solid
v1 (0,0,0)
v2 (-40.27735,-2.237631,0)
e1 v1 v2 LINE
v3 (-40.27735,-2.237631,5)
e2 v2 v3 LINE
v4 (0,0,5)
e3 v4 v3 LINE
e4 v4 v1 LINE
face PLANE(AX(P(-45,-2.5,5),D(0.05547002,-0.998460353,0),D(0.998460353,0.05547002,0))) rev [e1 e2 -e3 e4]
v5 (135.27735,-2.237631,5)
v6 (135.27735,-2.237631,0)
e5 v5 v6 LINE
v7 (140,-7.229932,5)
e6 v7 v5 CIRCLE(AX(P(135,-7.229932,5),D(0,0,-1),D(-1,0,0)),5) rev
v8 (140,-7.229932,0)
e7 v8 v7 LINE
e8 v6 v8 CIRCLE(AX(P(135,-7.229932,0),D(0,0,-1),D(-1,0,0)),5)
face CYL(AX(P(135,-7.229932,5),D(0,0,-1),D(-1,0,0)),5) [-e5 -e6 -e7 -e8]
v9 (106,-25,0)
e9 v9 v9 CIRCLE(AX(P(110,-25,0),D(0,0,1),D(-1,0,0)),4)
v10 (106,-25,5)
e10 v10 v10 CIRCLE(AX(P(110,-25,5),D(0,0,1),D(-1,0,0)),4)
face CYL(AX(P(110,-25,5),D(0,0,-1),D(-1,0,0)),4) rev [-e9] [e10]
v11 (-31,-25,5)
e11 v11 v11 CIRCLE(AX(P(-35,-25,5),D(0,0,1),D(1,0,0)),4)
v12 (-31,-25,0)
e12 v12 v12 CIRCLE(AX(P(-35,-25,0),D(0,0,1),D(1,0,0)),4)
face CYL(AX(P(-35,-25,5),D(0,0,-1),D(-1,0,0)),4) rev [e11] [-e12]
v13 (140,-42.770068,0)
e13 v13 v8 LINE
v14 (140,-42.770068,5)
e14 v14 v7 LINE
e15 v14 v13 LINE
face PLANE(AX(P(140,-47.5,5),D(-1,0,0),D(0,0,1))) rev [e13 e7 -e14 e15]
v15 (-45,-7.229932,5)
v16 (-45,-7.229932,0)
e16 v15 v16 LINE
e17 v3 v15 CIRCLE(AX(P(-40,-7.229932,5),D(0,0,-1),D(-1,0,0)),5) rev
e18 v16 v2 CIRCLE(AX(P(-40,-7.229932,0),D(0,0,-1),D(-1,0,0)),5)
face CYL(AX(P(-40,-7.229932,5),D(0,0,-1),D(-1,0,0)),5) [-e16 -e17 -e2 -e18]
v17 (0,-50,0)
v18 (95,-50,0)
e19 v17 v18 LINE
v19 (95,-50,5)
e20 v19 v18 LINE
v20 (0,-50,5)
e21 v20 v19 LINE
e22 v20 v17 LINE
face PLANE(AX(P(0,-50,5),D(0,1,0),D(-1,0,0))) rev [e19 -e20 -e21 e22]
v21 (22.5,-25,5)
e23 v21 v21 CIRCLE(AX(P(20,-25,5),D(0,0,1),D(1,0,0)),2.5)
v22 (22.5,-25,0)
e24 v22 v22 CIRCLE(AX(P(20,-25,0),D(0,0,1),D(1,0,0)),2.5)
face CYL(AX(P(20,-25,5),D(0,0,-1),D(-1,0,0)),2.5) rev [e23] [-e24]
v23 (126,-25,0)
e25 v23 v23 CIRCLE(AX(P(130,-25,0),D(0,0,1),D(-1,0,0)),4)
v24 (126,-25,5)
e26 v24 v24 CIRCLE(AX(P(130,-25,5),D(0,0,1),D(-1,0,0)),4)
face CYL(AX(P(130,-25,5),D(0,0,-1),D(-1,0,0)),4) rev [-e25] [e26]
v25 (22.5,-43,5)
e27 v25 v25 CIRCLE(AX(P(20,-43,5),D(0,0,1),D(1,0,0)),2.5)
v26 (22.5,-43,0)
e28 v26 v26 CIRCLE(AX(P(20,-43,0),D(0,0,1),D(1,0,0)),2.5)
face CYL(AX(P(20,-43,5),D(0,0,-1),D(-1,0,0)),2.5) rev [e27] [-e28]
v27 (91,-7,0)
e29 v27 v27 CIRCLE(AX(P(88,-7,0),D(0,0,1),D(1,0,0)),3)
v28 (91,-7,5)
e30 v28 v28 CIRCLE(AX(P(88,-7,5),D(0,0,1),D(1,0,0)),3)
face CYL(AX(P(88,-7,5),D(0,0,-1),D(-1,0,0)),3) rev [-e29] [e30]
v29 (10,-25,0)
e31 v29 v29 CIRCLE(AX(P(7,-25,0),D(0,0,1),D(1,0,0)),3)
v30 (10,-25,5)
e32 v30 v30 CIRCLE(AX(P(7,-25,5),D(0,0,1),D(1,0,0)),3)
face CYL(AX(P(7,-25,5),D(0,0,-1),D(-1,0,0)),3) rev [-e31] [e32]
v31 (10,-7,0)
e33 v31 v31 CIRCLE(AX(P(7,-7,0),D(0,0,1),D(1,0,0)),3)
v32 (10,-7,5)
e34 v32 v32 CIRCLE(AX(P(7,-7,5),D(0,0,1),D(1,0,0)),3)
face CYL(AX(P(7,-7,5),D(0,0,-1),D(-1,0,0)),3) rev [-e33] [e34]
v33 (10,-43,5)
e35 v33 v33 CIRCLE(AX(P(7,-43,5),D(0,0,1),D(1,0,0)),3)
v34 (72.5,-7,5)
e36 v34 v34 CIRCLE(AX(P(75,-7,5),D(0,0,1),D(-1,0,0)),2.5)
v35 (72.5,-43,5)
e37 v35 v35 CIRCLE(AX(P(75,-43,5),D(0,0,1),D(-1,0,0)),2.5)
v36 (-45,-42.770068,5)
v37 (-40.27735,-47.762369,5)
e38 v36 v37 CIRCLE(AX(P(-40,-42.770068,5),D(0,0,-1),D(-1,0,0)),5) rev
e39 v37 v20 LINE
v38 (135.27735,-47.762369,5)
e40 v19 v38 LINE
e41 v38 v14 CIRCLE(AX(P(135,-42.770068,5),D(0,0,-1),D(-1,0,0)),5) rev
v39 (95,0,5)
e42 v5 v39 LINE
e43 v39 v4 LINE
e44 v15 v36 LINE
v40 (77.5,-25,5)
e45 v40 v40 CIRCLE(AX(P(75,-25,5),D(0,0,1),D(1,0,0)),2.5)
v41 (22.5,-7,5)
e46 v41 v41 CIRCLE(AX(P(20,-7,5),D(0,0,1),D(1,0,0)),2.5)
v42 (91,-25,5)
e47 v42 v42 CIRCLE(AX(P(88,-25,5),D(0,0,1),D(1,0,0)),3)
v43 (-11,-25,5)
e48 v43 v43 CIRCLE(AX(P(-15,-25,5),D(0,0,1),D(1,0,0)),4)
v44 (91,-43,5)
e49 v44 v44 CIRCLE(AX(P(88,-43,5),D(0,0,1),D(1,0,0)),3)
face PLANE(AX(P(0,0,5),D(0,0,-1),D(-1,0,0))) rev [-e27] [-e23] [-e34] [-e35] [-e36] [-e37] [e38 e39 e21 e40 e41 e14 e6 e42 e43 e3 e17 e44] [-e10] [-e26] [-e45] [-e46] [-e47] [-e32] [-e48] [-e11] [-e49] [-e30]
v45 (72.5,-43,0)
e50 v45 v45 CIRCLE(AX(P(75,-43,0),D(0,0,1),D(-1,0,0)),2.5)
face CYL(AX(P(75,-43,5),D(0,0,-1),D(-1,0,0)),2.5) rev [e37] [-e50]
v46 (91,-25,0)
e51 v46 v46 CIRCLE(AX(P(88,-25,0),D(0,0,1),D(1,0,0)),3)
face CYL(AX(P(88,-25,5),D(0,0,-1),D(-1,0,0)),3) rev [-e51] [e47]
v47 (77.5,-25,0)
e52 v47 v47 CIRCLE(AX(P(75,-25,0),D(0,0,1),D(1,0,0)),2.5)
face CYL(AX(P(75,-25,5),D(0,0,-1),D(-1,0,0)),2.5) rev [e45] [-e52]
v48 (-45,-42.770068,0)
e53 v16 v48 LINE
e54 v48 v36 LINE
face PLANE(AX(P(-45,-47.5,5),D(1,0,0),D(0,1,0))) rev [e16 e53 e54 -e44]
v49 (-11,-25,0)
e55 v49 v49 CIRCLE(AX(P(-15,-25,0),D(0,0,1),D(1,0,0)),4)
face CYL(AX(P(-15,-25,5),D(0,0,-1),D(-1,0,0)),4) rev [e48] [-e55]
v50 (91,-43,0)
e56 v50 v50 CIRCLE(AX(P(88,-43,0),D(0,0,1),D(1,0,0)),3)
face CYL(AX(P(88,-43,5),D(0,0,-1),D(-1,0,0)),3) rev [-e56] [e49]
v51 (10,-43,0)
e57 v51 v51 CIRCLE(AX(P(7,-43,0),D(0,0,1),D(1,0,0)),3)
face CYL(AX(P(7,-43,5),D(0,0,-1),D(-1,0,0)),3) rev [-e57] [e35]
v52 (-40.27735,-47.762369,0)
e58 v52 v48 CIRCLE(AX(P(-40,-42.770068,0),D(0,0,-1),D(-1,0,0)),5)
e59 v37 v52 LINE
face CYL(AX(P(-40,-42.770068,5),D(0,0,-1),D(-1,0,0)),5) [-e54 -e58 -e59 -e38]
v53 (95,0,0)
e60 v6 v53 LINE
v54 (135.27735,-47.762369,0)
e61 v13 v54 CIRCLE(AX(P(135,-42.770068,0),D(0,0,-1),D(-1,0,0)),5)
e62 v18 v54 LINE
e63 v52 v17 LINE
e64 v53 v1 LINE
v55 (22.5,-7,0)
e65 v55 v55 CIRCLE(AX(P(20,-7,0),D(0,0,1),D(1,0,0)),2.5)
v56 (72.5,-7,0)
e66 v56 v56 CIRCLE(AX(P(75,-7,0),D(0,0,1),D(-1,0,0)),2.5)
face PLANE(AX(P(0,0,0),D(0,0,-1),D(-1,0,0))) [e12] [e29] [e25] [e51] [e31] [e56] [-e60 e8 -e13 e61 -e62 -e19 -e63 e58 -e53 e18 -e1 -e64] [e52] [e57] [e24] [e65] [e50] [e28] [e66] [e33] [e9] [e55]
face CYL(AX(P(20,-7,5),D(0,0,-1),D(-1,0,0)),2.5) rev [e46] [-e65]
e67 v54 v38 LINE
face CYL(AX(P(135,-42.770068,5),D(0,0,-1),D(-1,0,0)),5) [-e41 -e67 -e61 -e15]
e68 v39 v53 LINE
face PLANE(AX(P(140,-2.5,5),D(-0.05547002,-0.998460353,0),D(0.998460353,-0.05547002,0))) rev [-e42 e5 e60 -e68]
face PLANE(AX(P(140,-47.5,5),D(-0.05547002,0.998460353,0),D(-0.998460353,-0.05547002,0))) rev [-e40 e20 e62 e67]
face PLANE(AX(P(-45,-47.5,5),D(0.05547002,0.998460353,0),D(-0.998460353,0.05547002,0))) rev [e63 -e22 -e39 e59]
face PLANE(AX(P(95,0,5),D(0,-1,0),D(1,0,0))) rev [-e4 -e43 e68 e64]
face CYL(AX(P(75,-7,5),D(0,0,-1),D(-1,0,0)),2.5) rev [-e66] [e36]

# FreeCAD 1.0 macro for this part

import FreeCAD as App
import Part
import Sketcher
Q = App.Units.Quantity


def edges_at(feature, points):
    """Names of the edges that pass closest to the given points."""
    edges = feature.Shape.Edges
    near = lambda p: min(range(len(edges)), key=lambda i: edges[i].distToShape(Part.Vertex(*p))[0])
    return sorted({f"Edge{near(p) + 1}" for p in points})

doc = App.newDocument("Part")
body = doc.addObject("PartDesign::Body", "Body")

sketch1 = body.newObject("Sketcher::SketchObject", "Sketch")
sketch1.AttachmentSupport = (doc.getObject("XY_Plane"), [""])
sketch1.MapMode = "FlatFace"
sketch1.addGeometry(Part.LineSegment(App.Vector(95, 0, 0), App.Vector(0, 0, 0)), False)
sketch1.addGeometry(Part.LineSegment(App.Vector(0, 0, 0), App.Vector(-45, -2.5, 0)), False)
sketch1.addGeometry(Part.LineSegment(App.Vector(-45, -2.5, 0), App.Vector(-45, -47.5, 0)), False)
sketch1.addGeometry(Part.LineSegment(App.Vector(-45, -47.5, 0), App.Vector(0, -50, 0)), False)
sketch1.addGeometry(Part.LineSegment(App.Vector(0, -50, 0), App.Vector(95, -50, 0)), False)
sketch1.addGeometry(Part.LineSegment(App.Vector(95, -50, 0), App.Vector(140, -47.5, 0)), False)
sketch1.addGeometry(Part.LineSegment(App.Vector(140, -47.5, 0), App.Vector(140, -2.5, 0)), False)
sketch1.addGeometry(Part.LineSegment(App.Vector(140, -2.5, 0), App.Vector(95, 0, 0)), False)
sketch1.addGeometry(Part.Circle(App.Vector(7, -43, 0), App.Vector(0, 0, 1), 3), False)
sketch1.addGeometry(Part.Circle(App.Vector(20, -43, 0), App.Vector(0, 0, 1), 2.5), False)
sketch1.addGeometry(Part.Circle(App.Vector(75, -43, 0), App.Vector(0, 0, 1), 2.5), False)
sketch1.addGeometry(Part.Circle(App.Vector(88, -43, 0), App.Vector(0, 0, 1), 3), False)
sketch1.addGeometry(Part.Circle(App.Vector(-35, -25, 0), App.Vector(0, 0, 1), 4), False)
sketch1.addGeometry(Part.Circle(App.Vector(-15, -25, 0), App.Vector(0, 0, 1), 4), False)
sketch1.addGeometry(Part.Circle(App.Vector(7, -25, 0), App.Vector(0, 0, 1), 3), False)
sketch1.addGeometry(Part.Circle(App.Vector(20, -25, 0), App.Vector(0, 0, 1), 2.5), False)
sketch1.addGeometry(Part.Circle(App.Vector(7, -7, 0), App.Vector(0, 0, 1), 3), False)
sketch1.addGeometry(Part.Circle(App.Vector(20, -7, 0), App.Vector(0, 0, 1), 2.5), False)
sketch1.addGeometry(Part.Circle(App.Vector(75, -25, 0), App.Vector(0, 0, 1), 2.5), False)
sketch1.addGeometry(Part.Circle(App.Vector(88, -25, 0), App.Vector(0, 0, 1), 3), False)
sketch1.addGeometry(Part.Circle(App.Vector(110, -25, 0), App.Vector(0, 0, 1), 4), False)
sketch1.addGeometry(Part.Circle(App.Vector(130, -25, 0), App.Vector(0, 0, 1), 4), False)
sketch1.addGeometry(Part.Circle(App.Vector(75, -7, 0), App.Vector(0, 0, 1), 2.5), False)
sketch1.addGeometry(Part.Circle(App.Vector(88, -7, 0), App.Vector(0, 0, 1), 3), False)
sketch1.addConstraint(Sketcher.Constraint("Coincident", 0, 2, 1, 1))
sketch1.addConstraint(Sketcher.Constraint("Coincident", 1, 2, 2, 1))
sketch1.addConstraint(Sketcher.Constraint("Coincident", 2, 2, 3, 1))
sketch1.addConstraint(Sketcher.Constraint("Coincident", 3, 2, 4, 1))
sketch1.addConstraint(Sketcher.Constraint("Coincident", 4, 2, 5, 1))
sketch1.addConstraint(Sketcher.Constraint("Coincident", 5, 2, 6, 1))
sketch1.addConstraint(Sketcher.Constraint("Coincident", 6, 2, 7, 1))
sketch1.addConstraint(Sketcher.Constraint("Coincident", 7, 2, 0, 1))
sketch1.addConstraint(Sketcher.Constraint("Horizontal", 0))
sketch1.addConstraint(Sketcher.Constraint("Vertical", 2))
sketch1.addConstraint(Sketcher.Constraint("Horizontal", 4))
sketch1.addConstraint(Sketcher.Constraint("Vertical", 6))
sketch1.addConstraint(Sketcher.Constraint("Coincident", 0, 2, -1, 1))
sketch1.addConstraint(Sketcher.Constraint("Equal", 9, 10))
sketch1.addConstraint(Sketcher.Constraint("Equal", 8, 11))
sketch1.addConstraint(Sketcher.Constraint("Equal", 12, 13))
sketch1.addConstraint(Sketcher.Constraint("Equal", 11, 14))
sketch1.addConstraint(Sketcher.Constraint("Equal", 10, 15))
sketch1.addConstraint(Sketcher.Constraint("Equal", 14, 16))
sketch1.addConstraint(Sketcher.Constraint("Equal", 15, 17))
sketch1.addConstraint(Sketcher.Constraint("Equal", 17, 18))
sketch1.addConstraint(Sketcher.Constraint("Equal", 16, 19))
sketch1.addConstraint(Sketcher.Constraint("Equal", 13, 20))
sketch1.addConstraint(Sketcher.Constraint("Equal", 20, 21))
sketch1.addConstraint(Sketcher.Constraint("Equal", 18, 22))
sketch1.addConstraint(Sketcher.Constraint("Equal", 19, 23))
sketch1.addConstraint(Sketcher.Constraint("PointOnObject", 3, 2, -2))
sketch1.addConstraint(Sketcher.Constraint("Parallel", 1, 5))
sketch1.addConstraint(Sketcher.Constraint("Parallel", 3, 7))
sketch1.addConstraint(Sketcher.Constraint("Horizontal", 8, 3, 9, 3))
sketch1.addConstraint(Sketcher.Constraint("Horizontal", 9, 3, 10, 3))
sketch1.addConstraint(Sketcher.Constraint("Horizontal", 10, 3, 11, 3))
sketch1.addConstraint(Sketcher.Constraint("Horizontal", 12, 3, 13, 3))
sketch1.addConstraint(Sketcher.Constraint("Horizontal", 13, 3, 14, 3))
sketch1.addConstraint(Sketcher.Constraint("Horizontal", 14, 3, 15, 3))
sketch1.addConstraint(Sketcher.Constraint("Horizontal", 16, 3, 17, 3))
sketch1.addConstraint(Sketcher.Constraint("Horizontal", 15, 3, 18, 3))
sketch1.addConstraint(Sketcher.Constraint("Horizontal", 18, 3, 19, 3))
sketch1.addConstraint(Sketcher.Constraint("Horizontal", 19, 3, 20, 3))
sketch1.addConstraint(Sketcher.Constraint("Horizontal", 20, 3, 21, 3))
sketch1.addConstraint(Sketcher.Constraint("Horizontal", 17, 3, 22, 3))
sketch1.addConstraint(Sketcher.Constraint("Horizontal", 22, 3, 23, 3))
sketch1.addConstraint(Sketcher.Constraint("Horizontal", 2, 2, 5, 2))
sketch1.addConstraint(Sketcher.Constraint("Horizontal", 1, 2, 6, 2))
sketch1.addConstraint(Sketcher.Constraint("Vertical", 8, 3, 14, 3))
sketch1.addConstraint(Sketcher.Constraint("Vertical", 9, 3, 15, 3))
sketch1.addConstraint(Sketcher.Constraint("Vertical", 14, 3, 16, 3))
sketch1.addConstraint(Sketcher.Constraint("Vertical", 15, 3, 17, 3))
sketch1.addConstraint(Sketcher.Constraint("Vertical", 10, 3, 18, 3))
sketch1.addConstraint(Sketcher.Constraint("Vertical", 11, 3, 19, 3))
sketch1.addConstraint(Sketcher.Constraint("Vertical", 18, 3, 22, 3))
sketch1.addConstraint(Sketcher.Constraint("Vertical", 19, 3, 23, 3))
sketch1.addConstraint(Sketcher.Constraint("Vertical", 4, 2, 7, 2))
sketch1.addConstraint(Sketcher.Constraint("Diameter", 8, Q("6 mm")))
sketch1.addConstraint(Sketcher.Constraint("Diameter", 9, Q("5 mm")))
sketch1.addConstraint(Sketcher.Constraint("Diameter", 12, Q("8 mm")))
sketch1.addConstraint(Sketcher.Constraint("DistanceX", 0, 2, 0, 1, Q("95 mm")))
sketch1.addConstraint(Sketcher.Constraint("DistanceY", 2, 2, 2, 1, Q("45 mm")))
sketch1.addConstraint(Sketcher.Constraint("DistanceX", -1, 1, 8, 3, Q("7 mm")))
sketch1.addConstraint(Sketcher.Constraint("DistanceY", 8, 3, -1, 1, Q("43 mm")))
sketch1.addConstraint(Sketcher.Constraint("DistanceX", -1, 1, 9, 3, Q("20 mm")))
sketch1.addConstraint(Sketcher.Constraint("DistanceX", -1, 1, 10, 3, Q("75 mm")))
sketch1.addConstraint(Sketcher.Constraint("DistanceX", -1, 1, 11, 3, Q("88 mm")))
sketch1.addConstraint(Sketcher.Constraint("DistanceX", 12, 3, -1, 1, Q("35 mm")))
sketch1.addConstraint(Sketcher.Constraint("DistanceY", 12, 3, -1, 1, Q("25 mm")))
sketch1.addConstraint(Sketcher.Constraint("DistanceX", 13, 3, -1, 1, Q("15 mm")))
sketch1.addConstraint(Sketcher.Constraint("DistanceY", 16, 3, -1, 1, Q("7 mm")))
sketch1.addConstraint(Sketcher.Constraint("DistanceX", -1, 1, 20, 3, Q("110 mm")))
sketch1.addConstraint(Sketcher.Constraint("DistanceX", -1, 1, 21, 3, Q("130 mm")))
sketch1.addConstraint(Sketcher.Constraint("DistanceX", 1, 2, -1, 1, Q("45 mm")))
sketch1.addConstraint(Sketcher.Constraint("DistanceY", 3, 2, -1, 1, Q("50 mm")))
pad1 = body.newObject("PartDesign::Pad", "Pad")
pad1.Profile = sketch1
pad1.Length = 5
doc.recompute()

fillet = body.newObject("PartDesign::Fillet", "Fillet")
fillet.Base = (pad1, edges_at(pad1, [
    (140, -2.5, 2.5),
    (140, -47.5, 2.5),
    (-45, -47.5, 2.5),
    (-45, -2.5, 2.5),
]))
fillet.Radius = 5

doc.recompute()
